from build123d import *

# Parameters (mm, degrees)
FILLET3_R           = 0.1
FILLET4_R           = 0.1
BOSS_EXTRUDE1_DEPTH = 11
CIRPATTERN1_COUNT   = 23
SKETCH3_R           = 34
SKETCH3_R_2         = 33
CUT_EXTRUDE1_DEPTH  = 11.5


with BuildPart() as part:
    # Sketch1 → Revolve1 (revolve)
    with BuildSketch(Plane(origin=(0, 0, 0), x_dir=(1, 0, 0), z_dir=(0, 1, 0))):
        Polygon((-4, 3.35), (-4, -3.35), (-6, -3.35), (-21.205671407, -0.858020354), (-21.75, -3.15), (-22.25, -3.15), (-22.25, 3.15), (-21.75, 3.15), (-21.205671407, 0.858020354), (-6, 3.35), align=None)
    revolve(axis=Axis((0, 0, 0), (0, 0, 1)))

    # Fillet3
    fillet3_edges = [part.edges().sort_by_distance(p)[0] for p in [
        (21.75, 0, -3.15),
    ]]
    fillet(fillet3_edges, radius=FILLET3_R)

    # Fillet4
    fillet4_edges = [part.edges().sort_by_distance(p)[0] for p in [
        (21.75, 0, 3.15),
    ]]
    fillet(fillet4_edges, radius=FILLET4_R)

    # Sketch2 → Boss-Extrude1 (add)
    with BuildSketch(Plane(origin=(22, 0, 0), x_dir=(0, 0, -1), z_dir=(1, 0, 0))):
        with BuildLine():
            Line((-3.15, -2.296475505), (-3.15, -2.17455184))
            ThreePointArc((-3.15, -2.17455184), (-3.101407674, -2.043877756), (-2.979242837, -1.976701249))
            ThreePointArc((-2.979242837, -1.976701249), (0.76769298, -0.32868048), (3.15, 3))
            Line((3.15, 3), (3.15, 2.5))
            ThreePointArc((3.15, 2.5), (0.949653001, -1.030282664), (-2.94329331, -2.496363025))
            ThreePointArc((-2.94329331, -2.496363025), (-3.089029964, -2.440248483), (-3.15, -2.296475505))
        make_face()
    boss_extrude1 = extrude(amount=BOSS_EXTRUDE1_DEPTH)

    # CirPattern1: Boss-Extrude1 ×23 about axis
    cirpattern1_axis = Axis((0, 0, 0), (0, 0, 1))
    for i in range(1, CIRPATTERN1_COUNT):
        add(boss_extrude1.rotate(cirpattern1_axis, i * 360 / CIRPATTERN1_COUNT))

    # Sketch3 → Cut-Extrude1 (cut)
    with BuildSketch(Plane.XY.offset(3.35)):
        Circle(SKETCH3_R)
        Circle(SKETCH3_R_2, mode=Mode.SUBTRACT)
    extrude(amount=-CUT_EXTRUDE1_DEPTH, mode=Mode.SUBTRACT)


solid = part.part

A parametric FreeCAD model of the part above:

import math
import FreeCAD as App
import Part
import Sketcher
Q = App.Units.Quantity


def edges_at(feature, points):
    """Names of the edges that pass closest to the given points."""
    edges = feature.Shape.Edges
    near = lambda p: min(range(len(edges)), key=lambda i: edges[i].distToShape(Part.Vertex(*p))[0])
    return sorted({f"Edge{near(p) + 1}" for p in points})

doc = App.newDocument("Part")
params = doc.addObject("Spreadsheet::Sheet", "Params")
for row, (alias, value) in enumerate([
    ("sketch1_width", "2 mm"),
    ("sketch1_width2", "0.5 mm"),
    ("sketch1_height", "6.7 mm"),
    ("sketch1_height2", "6.3 mm"),
    ("revolution_angle", "360 deg"),
    ("fillet_radius", "0.1 mm"),
    ("fillet2_radius", "0.1 mm"),
    ("sketch2_radius", "0.2 mm"),
    ("sketch2_width", "0.5 mm"),
    ("pad1_length", "11 mm"),
    ("sketch3_diameter", "68 mm"),
    ("sketch3_diameter2", "66 mm"),
    ("pocket1_length", "11.5 mm"),
], start=1):
    params.set(f"A{row}", alias)
    params.set(f"B{row}", "=" + value)
    params.setAlias(f"B{row}", alias)

body = doc.addObject("PartDesign::Body", "Body")

# Sketch on XZ plane
sketch1 = body.newObject("Sketcher::SketchObject", "Sketch")
sketch1.AttachmentSupport = (doc.getObject("XZ_Plane"), [""])
sketch1.MapMode = "FlatFace"
sketch1.addGeometry([
    Part.LineSegment(App.Vector(-4, 3.35, 0), App.Vector(-4, -3.35, 0)),  # 0
    Part.LineSegment(App.Vector(-4, -3.35, 0), App.Vector(-6, -3.35, 0)),  # 1
    Part.LineSegment(App.Vector(-6, -3.35, 0), App.Vector(-21.205671, -0.85802, 0)),  # 2
    Part.LineSegment(App.Vector(-21.205671, -0.85802, 0), App.Vector(-21.75, -3.15, 0)),  # 3
    Part.LineSegment(App.Vector(-21.75, -3.15, 0), App.Vector(-22.25, -3.15, 0)),  # 4
    Part.LineSegment(App.Vector(-22.25, -3.15, 0), App.Vector(-22.25, 3.15, 0)),  # 5
    Part.LineSegment(App.Vector(-22.25, 3.15, 0), App.Vector(-21.75, 3.15, 0)),  # 6
    Part.LineSegment(App.Vector(-21.75, 3.15, 0), App.Vector(-21.205671, 0.85802, 0)),  # 7
    Part.LineSegment(App.Vector(-21.205671, 0.85802, 0), App.Vector(-6, 3.35, 0)),  # 8
    Part.LineSegment(App.Vector(-6, 3.35, 0), App.Vector(-4, 3.35, 0)),  # 9
], False)
sketch1.addConstraint([
    Sketcher.Constraint("Coincident", 0, 2, 1, 1),
    Sketcher.Constraint("Coincident", 1, 2, 2, 1),
    Sketcher.Constraint("Coincident", 2, 2, 3, 1),
    Sketcher.Constraint("Coincident", 3, 2, 4, 1),
    Sketcher.Constraint("Coincident", 4, 2, 5, 1),
    Sketcher.Constraint("Coincident", 5, 2, 6, 1),
    Sketcher.Constraint("Coincident", 6, 2, 7, 1),
    Sketcher.Constraint("Coincident", 7, 2, 8, 1),
    Sketcher.Constraint("Coincident", 8, 2, 9, 1),
    Sketcher.Constraint("Coincident", 9, 2, 0, 1),
    Sketcher.Constraint("Vertical", 0),
    Sketcher.Constraint("Horizontal", 1),
    Sketcher.Constraint("Horizontal", 4),
    Sketcher.Constraint("Vertical", 5),
    Sketcher.Constraint("Horizontal", 6),
    Sketcher.Constraint("Horizontal", 9),
    Sketcher.Constraint("Symmetric", 3, 2, 6, 2, -1),
    Sketcher.Constraint("Symmetric", 2, 2, 7, 2, -1),
    Sketcher.Constraint("Symmetric", 1, 2, 8, 2, -1),
    Sketcher.Constraint("DistanceX", 1, 2, 1, 1, Q("2 mm")),
    Sketcher.Constraint("DistanceX", 4, 2, 4, 1, Q("0.5 mm")),
    Sketcher.Constraint("DistanceY", 0, 2, 0, 1, Q("6.7 mm")),
    Sketcher.Constraint("DistanceY", 5, 1, 5, 2, Q("6.3 mm")),
    Sketcher.Constraint("DistanceX", 0, 2, -1, 1, Q("4 mm")),
    Sketcher.Constraint("DistanceX", 3, 2, -1, 1, Q("21.75 mm")),
    Sketcher.Constraint("Distance", 3, Q("2.35573 mm")),
    Sketcher.Constraint("DistanceX", 2, 2, -1, 1, Q("21.205671 mm")),
])
sketch1.setExpression("Constraints[19]", "Params.sketch1_width")
sketch1.setExpression("Constraints[20]", "Params.sketch1_width2")
sketch1.setExpression("Constraints[21]", "Params.sketch1_height")
sketch1.setExpression("Constraints[22]", "Params.sketch1_height2")
revolution = body.newObject("PartDesign::Revolution", "Revolution")
revolution.Profile = sketch1
revolution.ReferenceAxis = (sketch1, ["V_Axis"])
revolution.setExpression("Angle", "Params.revolution_angle")
doc.recompute()

fillet = body.newObject("PartDesign::Fillet", "Fillet")
fillet.Base = (revolution, edges_at(revolution, [(21.75, 0, -3.15)]))
fillet.setExpression("Radius", "Params.fillet_radius")
doc.recompute()

fillet2 = body.newObject("PartDesign::Fillet", "Fillet001")
fillet2.Base = (fillet, edges_at(fillet, [(21.75, 0, 3.15)]))
fillet2.setExpression("Radius", "Params.fillet2_radius")

# Sketch on YZ plane
sketch2 = body.newObject("Sketcher::SketchObject", "Sketch001")
sketch2.AttachmentSupport = (doc.getObject("YZ_Plane"), [""])
sketch2.MapMode = "FlatFace"
sketch2.AttachmentOffset = App.Placement(App.Vector(0, 0, 22), App.Rotation())
sketch2.addGeometry([
    Part.LineSegment(App.Vector(-2.174552, 3.15, 0), App.Vector(-2.296476, 3.15, 0)),  # 0
    Part.ArcOfCircle(Part.Circle(App.Vector(-2.296476, 2.95, 0), App.Vector(0, 0, 1), 0.2), math.radians(90), math.radians(181.921685)),  # 1
    Part.ArcOfCircle(Part.Circle(App.Vector(3.982447, 3.160672, 0), App.Vector(0, 0, 1), 6.482456), math.radians(-178.078315), math.radians(-103.219726)),  # 2
    Part.LineSegment(App.Vector(2.5, -3.15, 0), App.Vector(3, -3.15, 0)),  # 3
    Part.ArcOfCircle(Part.Circle(App.Vector(5.679709, 4.11088, 0), App.Vector(0, 0, 1), 7.739588), math.radians(-171.592404), math.radians(-110.257148)),  # 4
    Part.ArcOfCircle(Part.Circle(App.Vector(-2.174552, 2.95, 0), App.Vector(0, 0, 1), 0.2), math.radians(8.407596), math.radians(90)),  # 5
], False)
sketch2.addConstraint([
    Sketcher.Constraint("Tangent", 0, 2, 1, 1),
    Sketcher.Constraint("Tangent", 1, 2, 2, 1),
    Sketcher.Constraint("Coincident", 2, 2, 3, 1),
    Sketcher.Constraint("Coincident", 3, 2, 4, 2),
    Sketcher.Constraint("Tangent", 4, 1, 5, 1),
    Sketcher.Constraint("Tangent", 5, 2, 0, 1),
    Sketcher.Constraint("Horizontal", 0),
    Sketcher.Constraint("Horizontal", 3),
    Sketcher.Constraint("Equal", 1, 5),
    Sketcher.Constraint("Radius", 1, Q("0.2 mm")),
    Sketcher.Constraint("DistanceX", 3, 1, 3, 2, Q("0.5 mm")),
    Sketcher.Constraint("DistanceX", -1, 1, 3, 2, Q("3 mm")),
    Sketcher.Constraint("DistanceY", 2, 2, 5, 3, Q("6.1 mm")),
    Sketcher.Constraint("DistanceY", -1, 1, 1, 3, Q("2.95 mm")),
    Sketcher.Constraint("Radius", 4, Q("7.739588 mm")),
    Sketcher.Constraint("Radius", 2, Q("6.482456 mm")),
    Sketcher.Constraint("DistanceX", 5, 3, 2, 3, Q("6.156999 mm")),
    Sketcher.Constraint("DistanceX", 4, 1, -1, 1, Q("1.976701 mm")),
])
sketch2.setExpression("Constraints[9]", "Params.sketch2_radius")
sketch2.setExpression("Constraints[10]", "Params.sketch2_width")
pad1 = body.newObject("PartDesign::Pad", "Pad")
pad1.Profile = sketch2
pad1.setExpression("Length", "Params.pad1_length")
doc.recompute()

polarpattern = body.newObject("PartDesign::PolarPattern", "PolarPattern")
polarpattern.Originals = [pad1]
polarpattern.Axis = (doc.getObject("Z_Axis"), [""])
polarpattern.Angle = 360
polarpattern.Occurrences = 23
body.Tip = polarpattern

# Sketch on XY plane
sketch3 = body.newObject("Sketcher::SketchObject", "Sketch002")
sketch3.AttachmentSupport = (doc.getObject("XY_Plane"), [""])
sketch3.MapMode = "FlatFace"
sketch3.AttachmentOffset = App.Placement(App.Vector(0, 0, 3.35), App.Rotation())
sketch3.addGeometry([
    Part.Circle(App.Vector(0, 0, 0), App.Vector(0, 0, 1), 34),
    Part.Circle(App.Vector(0, 0, 0), App.Vector(0, 0, 1), 33),
], False)
sketch3.addConstraint([
    Sketcher.Constraint("Coincident", 0, 3, -1, 1),
    Sketcher.Constraint("Coincident", 1, 3, -1, 1),
    Sketcher.Constraint("Diameter", 0, Q("68 mm")),
    Sketcher.Constraint("Diameter", 1, Q("66 mm")),
])
sketch3.setExpression("Constraints[2]", "Params.sketch3_diameter")
sketch3.setExpression("Constraints[3]", "Params.sketch3_diameter2")
pocket1 = body.newObject("PartDesign::Pocket", "Pocket")
pocket1.Profile = sketch3
pocket1.setExpression("Length", "Params.pocket1_length")

doc.recompute()
